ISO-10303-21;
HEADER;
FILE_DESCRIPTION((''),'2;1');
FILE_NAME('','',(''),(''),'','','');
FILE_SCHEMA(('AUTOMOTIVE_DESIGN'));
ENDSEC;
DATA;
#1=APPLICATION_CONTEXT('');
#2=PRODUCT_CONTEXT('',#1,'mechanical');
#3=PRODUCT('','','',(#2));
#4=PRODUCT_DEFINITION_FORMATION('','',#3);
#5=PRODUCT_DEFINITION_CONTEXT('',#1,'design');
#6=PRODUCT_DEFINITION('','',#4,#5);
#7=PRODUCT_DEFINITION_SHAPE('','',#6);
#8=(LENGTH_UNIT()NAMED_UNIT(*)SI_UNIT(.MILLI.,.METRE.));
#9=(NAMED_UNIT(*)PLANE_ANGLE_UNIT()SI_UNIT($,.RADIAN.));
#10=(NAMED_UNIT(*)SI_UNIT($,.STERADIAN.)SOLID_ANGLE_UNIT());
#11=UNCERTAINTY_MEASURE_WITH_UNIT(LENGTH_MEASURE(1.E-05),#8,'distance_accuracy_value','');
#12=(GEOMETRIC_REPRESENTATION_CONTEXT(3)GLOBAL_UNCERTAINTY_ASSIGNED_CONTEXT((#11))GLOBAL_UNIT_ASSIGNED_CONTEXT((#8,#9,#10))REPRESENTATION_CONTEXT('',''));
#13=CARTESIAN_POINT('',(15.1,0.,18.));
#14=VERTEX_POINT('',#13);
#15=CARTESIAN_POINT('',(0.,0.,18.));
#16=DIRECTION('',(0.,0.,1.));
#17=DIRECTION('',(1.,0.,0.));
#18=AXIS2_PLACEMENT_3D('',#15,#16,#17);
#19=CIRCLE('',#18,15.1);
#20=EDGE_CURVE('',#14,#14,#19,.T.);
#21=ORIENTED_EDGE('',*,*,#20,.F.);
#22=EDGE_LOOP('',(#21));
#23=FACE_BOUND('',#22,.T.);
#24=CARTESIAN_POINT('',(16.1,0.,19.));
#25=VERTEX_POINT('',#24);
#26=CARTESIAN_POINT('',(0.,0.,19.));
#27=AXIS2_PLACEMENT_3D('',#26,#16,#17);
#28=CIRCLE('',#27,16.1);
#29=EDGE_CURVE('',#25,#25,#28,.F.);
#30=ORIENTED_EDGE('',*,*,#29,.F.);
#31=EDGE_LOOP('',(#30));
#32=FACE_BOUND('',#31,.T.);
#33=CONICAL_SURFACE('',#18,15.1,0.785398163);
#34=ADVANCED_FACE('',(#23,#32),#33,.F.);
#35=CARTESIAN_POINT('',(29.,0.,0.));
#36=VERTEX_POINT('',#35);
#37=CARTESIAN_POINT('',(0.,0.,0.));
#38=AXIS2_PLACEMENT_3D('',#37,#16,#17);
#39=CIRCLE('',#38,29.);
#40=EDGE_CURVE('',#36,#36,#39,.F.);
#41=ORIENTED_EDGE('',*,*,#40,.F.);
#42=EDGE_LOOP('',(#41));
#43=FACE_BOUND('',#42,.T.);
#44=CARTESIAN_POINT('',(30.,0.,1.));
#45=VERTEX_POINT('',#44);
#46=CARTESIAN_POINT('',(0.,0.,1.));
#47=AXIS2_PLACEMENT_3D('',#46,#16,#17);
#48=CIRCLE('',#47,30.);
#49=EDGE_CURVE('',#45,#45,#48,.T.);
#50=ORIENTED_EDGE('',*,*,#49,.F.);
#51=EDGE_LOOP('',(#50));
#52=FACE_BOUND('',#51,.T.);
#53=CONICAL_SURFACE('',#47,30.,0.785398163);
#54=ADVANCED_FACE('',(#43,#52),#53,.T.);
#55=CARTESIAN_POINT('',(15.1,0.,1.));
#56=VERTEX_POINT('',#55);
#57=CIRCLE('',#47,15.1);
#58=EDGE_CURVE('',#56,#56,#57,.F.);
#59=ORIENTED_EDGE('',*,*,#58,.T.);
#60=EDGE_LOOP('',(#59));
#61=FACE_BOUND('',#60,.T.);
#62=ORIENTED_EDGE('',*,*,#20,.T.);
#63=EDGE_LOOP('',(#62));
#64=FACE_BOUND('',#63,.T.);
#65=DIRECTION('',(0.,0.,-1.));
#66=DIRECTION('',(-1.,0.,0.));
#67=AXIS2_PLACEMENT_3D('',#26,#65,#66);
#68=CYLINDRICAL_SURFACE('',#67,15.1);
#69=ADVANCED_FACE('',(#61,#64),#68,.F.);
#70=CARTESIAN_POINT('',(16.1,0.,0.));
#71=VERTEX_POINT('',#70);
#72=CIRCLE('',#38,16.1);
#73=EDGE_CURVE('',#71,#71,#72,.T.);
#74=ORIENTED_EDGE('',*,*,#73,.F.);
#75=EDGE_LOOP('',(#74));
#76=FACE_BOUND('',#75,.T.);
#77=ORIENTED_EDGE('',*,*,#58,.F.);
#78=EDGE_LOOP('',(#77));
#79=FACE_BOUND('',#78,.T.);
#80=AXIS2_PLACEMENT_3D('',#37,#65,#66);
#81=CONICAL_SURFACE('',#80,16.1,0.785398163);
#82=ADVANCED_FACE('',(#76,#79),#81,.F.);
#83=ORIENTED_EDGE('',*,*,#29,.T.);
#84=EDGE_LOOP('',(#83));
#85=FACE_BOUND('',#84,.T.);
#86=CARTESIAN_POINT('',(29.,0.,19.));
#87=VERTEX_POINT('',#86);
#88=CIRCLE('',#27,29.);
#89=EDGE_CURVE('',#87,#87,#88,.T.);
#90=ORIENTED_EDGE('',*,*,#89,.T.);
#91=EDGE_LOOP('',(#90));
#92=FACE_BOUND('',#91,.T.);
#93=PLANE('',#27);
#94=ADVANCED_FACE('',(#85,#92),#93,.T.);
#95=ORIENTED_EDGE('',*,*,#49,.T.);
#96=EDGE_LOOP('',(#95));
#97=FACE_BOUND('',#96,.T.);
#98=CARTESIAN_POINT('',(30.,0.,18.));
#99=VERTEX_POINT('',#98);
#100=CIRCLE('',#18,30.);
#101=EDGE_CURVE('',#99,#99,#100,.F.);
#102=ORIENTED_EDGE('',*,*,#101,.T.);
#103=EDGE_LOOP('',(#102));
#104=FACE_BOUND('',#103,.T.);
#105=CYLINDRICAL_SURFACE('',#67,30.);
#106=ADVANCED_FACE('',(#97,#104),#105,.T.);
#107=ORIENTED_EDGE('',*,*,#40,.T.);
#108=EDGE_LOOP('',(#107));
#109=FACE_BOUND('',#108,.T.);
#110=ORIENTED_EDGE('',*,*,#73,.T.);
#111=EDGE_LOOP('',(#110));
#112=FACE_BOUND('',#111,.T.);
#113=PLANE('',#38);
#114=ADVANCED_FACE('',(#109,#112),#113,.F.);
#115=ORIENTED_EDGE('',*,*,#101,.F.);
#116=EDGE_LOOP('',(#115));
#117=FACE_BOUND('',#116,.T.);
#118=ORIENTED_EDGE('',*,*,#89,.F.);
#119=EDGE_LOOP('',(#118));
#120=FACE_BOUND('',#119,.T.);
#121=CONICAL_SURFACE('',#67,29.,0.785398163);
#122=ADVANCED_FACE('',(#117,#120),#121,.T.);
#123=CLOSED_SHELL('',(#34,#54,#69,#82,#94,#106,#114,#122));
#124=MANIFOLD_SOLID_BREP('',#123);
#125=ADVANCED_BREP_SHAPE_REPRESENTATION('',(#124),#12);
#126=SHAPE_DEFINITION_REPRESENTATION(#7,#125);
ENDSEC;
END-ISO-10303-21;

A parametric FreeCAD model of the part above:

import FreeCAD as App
import Part
import Sketcher
from FreeCAD import Vector


def edges_at(feature, points):
    """Names of the edges that pass closest to the given points."""
    edges = feature.Shape.Edges
    near = lambda p: min(range(len(edges)), key=lambda i: edges[i].distToShape(Part.Vertex(*p))[0])
    return sorted({f"Edge{near(p) + 1}" for p in points})

doc = App.newDocument("Part")
body = doc.addObject("PartDesign::Body", "Body")

# Sketch on XY plane
sketch1 = body.newObject("Sketcher::SketchObject", "Sketch")
sketch1.AttachmentSupport = (doc.getObject("XY_Plane"), [""])
sketch1.MapMode = "FlatFace"
sketch1.addGeometry(Part.Circle(Vector(0, 0, 0), Vector(0, 0, 1), 30), False)
sketch1.addGeometry(Part.Circle(Vector(0, 0, 0), Vector(0, 0, 1), 15), False)
sketch1.addConstraint(Sketcher.Constraint("Coincident", 0, 3, -1, 1))
sketch1.addConstraint(Sketcher.Constraint("Coincident", 1, 3, -1, 1))
sketch1.addConstraint(Sketcher.Constraint("Diameter", 0, 60.0))
sketch1.addConstraint(Sketcher.Constraint("Diameter", 1, 30.2))
pad1 = body.newObject("PartDesign::Pad", "Pad")
pad1.Profile = sketch1
pad1.Length = 19
doc.recompute()

chamfer = body.newObject("PartDesign::Chamfer", "Chamfer")
chamfer.Base = (pad1, edges_at(pad1, [
    (-30, 0, 0),
    (-30, 0, 19),
    (-15.1, 0, 0),
    (-15.1, 0, 19),
]))
chamfer.Size = 1

doc.recompute()
